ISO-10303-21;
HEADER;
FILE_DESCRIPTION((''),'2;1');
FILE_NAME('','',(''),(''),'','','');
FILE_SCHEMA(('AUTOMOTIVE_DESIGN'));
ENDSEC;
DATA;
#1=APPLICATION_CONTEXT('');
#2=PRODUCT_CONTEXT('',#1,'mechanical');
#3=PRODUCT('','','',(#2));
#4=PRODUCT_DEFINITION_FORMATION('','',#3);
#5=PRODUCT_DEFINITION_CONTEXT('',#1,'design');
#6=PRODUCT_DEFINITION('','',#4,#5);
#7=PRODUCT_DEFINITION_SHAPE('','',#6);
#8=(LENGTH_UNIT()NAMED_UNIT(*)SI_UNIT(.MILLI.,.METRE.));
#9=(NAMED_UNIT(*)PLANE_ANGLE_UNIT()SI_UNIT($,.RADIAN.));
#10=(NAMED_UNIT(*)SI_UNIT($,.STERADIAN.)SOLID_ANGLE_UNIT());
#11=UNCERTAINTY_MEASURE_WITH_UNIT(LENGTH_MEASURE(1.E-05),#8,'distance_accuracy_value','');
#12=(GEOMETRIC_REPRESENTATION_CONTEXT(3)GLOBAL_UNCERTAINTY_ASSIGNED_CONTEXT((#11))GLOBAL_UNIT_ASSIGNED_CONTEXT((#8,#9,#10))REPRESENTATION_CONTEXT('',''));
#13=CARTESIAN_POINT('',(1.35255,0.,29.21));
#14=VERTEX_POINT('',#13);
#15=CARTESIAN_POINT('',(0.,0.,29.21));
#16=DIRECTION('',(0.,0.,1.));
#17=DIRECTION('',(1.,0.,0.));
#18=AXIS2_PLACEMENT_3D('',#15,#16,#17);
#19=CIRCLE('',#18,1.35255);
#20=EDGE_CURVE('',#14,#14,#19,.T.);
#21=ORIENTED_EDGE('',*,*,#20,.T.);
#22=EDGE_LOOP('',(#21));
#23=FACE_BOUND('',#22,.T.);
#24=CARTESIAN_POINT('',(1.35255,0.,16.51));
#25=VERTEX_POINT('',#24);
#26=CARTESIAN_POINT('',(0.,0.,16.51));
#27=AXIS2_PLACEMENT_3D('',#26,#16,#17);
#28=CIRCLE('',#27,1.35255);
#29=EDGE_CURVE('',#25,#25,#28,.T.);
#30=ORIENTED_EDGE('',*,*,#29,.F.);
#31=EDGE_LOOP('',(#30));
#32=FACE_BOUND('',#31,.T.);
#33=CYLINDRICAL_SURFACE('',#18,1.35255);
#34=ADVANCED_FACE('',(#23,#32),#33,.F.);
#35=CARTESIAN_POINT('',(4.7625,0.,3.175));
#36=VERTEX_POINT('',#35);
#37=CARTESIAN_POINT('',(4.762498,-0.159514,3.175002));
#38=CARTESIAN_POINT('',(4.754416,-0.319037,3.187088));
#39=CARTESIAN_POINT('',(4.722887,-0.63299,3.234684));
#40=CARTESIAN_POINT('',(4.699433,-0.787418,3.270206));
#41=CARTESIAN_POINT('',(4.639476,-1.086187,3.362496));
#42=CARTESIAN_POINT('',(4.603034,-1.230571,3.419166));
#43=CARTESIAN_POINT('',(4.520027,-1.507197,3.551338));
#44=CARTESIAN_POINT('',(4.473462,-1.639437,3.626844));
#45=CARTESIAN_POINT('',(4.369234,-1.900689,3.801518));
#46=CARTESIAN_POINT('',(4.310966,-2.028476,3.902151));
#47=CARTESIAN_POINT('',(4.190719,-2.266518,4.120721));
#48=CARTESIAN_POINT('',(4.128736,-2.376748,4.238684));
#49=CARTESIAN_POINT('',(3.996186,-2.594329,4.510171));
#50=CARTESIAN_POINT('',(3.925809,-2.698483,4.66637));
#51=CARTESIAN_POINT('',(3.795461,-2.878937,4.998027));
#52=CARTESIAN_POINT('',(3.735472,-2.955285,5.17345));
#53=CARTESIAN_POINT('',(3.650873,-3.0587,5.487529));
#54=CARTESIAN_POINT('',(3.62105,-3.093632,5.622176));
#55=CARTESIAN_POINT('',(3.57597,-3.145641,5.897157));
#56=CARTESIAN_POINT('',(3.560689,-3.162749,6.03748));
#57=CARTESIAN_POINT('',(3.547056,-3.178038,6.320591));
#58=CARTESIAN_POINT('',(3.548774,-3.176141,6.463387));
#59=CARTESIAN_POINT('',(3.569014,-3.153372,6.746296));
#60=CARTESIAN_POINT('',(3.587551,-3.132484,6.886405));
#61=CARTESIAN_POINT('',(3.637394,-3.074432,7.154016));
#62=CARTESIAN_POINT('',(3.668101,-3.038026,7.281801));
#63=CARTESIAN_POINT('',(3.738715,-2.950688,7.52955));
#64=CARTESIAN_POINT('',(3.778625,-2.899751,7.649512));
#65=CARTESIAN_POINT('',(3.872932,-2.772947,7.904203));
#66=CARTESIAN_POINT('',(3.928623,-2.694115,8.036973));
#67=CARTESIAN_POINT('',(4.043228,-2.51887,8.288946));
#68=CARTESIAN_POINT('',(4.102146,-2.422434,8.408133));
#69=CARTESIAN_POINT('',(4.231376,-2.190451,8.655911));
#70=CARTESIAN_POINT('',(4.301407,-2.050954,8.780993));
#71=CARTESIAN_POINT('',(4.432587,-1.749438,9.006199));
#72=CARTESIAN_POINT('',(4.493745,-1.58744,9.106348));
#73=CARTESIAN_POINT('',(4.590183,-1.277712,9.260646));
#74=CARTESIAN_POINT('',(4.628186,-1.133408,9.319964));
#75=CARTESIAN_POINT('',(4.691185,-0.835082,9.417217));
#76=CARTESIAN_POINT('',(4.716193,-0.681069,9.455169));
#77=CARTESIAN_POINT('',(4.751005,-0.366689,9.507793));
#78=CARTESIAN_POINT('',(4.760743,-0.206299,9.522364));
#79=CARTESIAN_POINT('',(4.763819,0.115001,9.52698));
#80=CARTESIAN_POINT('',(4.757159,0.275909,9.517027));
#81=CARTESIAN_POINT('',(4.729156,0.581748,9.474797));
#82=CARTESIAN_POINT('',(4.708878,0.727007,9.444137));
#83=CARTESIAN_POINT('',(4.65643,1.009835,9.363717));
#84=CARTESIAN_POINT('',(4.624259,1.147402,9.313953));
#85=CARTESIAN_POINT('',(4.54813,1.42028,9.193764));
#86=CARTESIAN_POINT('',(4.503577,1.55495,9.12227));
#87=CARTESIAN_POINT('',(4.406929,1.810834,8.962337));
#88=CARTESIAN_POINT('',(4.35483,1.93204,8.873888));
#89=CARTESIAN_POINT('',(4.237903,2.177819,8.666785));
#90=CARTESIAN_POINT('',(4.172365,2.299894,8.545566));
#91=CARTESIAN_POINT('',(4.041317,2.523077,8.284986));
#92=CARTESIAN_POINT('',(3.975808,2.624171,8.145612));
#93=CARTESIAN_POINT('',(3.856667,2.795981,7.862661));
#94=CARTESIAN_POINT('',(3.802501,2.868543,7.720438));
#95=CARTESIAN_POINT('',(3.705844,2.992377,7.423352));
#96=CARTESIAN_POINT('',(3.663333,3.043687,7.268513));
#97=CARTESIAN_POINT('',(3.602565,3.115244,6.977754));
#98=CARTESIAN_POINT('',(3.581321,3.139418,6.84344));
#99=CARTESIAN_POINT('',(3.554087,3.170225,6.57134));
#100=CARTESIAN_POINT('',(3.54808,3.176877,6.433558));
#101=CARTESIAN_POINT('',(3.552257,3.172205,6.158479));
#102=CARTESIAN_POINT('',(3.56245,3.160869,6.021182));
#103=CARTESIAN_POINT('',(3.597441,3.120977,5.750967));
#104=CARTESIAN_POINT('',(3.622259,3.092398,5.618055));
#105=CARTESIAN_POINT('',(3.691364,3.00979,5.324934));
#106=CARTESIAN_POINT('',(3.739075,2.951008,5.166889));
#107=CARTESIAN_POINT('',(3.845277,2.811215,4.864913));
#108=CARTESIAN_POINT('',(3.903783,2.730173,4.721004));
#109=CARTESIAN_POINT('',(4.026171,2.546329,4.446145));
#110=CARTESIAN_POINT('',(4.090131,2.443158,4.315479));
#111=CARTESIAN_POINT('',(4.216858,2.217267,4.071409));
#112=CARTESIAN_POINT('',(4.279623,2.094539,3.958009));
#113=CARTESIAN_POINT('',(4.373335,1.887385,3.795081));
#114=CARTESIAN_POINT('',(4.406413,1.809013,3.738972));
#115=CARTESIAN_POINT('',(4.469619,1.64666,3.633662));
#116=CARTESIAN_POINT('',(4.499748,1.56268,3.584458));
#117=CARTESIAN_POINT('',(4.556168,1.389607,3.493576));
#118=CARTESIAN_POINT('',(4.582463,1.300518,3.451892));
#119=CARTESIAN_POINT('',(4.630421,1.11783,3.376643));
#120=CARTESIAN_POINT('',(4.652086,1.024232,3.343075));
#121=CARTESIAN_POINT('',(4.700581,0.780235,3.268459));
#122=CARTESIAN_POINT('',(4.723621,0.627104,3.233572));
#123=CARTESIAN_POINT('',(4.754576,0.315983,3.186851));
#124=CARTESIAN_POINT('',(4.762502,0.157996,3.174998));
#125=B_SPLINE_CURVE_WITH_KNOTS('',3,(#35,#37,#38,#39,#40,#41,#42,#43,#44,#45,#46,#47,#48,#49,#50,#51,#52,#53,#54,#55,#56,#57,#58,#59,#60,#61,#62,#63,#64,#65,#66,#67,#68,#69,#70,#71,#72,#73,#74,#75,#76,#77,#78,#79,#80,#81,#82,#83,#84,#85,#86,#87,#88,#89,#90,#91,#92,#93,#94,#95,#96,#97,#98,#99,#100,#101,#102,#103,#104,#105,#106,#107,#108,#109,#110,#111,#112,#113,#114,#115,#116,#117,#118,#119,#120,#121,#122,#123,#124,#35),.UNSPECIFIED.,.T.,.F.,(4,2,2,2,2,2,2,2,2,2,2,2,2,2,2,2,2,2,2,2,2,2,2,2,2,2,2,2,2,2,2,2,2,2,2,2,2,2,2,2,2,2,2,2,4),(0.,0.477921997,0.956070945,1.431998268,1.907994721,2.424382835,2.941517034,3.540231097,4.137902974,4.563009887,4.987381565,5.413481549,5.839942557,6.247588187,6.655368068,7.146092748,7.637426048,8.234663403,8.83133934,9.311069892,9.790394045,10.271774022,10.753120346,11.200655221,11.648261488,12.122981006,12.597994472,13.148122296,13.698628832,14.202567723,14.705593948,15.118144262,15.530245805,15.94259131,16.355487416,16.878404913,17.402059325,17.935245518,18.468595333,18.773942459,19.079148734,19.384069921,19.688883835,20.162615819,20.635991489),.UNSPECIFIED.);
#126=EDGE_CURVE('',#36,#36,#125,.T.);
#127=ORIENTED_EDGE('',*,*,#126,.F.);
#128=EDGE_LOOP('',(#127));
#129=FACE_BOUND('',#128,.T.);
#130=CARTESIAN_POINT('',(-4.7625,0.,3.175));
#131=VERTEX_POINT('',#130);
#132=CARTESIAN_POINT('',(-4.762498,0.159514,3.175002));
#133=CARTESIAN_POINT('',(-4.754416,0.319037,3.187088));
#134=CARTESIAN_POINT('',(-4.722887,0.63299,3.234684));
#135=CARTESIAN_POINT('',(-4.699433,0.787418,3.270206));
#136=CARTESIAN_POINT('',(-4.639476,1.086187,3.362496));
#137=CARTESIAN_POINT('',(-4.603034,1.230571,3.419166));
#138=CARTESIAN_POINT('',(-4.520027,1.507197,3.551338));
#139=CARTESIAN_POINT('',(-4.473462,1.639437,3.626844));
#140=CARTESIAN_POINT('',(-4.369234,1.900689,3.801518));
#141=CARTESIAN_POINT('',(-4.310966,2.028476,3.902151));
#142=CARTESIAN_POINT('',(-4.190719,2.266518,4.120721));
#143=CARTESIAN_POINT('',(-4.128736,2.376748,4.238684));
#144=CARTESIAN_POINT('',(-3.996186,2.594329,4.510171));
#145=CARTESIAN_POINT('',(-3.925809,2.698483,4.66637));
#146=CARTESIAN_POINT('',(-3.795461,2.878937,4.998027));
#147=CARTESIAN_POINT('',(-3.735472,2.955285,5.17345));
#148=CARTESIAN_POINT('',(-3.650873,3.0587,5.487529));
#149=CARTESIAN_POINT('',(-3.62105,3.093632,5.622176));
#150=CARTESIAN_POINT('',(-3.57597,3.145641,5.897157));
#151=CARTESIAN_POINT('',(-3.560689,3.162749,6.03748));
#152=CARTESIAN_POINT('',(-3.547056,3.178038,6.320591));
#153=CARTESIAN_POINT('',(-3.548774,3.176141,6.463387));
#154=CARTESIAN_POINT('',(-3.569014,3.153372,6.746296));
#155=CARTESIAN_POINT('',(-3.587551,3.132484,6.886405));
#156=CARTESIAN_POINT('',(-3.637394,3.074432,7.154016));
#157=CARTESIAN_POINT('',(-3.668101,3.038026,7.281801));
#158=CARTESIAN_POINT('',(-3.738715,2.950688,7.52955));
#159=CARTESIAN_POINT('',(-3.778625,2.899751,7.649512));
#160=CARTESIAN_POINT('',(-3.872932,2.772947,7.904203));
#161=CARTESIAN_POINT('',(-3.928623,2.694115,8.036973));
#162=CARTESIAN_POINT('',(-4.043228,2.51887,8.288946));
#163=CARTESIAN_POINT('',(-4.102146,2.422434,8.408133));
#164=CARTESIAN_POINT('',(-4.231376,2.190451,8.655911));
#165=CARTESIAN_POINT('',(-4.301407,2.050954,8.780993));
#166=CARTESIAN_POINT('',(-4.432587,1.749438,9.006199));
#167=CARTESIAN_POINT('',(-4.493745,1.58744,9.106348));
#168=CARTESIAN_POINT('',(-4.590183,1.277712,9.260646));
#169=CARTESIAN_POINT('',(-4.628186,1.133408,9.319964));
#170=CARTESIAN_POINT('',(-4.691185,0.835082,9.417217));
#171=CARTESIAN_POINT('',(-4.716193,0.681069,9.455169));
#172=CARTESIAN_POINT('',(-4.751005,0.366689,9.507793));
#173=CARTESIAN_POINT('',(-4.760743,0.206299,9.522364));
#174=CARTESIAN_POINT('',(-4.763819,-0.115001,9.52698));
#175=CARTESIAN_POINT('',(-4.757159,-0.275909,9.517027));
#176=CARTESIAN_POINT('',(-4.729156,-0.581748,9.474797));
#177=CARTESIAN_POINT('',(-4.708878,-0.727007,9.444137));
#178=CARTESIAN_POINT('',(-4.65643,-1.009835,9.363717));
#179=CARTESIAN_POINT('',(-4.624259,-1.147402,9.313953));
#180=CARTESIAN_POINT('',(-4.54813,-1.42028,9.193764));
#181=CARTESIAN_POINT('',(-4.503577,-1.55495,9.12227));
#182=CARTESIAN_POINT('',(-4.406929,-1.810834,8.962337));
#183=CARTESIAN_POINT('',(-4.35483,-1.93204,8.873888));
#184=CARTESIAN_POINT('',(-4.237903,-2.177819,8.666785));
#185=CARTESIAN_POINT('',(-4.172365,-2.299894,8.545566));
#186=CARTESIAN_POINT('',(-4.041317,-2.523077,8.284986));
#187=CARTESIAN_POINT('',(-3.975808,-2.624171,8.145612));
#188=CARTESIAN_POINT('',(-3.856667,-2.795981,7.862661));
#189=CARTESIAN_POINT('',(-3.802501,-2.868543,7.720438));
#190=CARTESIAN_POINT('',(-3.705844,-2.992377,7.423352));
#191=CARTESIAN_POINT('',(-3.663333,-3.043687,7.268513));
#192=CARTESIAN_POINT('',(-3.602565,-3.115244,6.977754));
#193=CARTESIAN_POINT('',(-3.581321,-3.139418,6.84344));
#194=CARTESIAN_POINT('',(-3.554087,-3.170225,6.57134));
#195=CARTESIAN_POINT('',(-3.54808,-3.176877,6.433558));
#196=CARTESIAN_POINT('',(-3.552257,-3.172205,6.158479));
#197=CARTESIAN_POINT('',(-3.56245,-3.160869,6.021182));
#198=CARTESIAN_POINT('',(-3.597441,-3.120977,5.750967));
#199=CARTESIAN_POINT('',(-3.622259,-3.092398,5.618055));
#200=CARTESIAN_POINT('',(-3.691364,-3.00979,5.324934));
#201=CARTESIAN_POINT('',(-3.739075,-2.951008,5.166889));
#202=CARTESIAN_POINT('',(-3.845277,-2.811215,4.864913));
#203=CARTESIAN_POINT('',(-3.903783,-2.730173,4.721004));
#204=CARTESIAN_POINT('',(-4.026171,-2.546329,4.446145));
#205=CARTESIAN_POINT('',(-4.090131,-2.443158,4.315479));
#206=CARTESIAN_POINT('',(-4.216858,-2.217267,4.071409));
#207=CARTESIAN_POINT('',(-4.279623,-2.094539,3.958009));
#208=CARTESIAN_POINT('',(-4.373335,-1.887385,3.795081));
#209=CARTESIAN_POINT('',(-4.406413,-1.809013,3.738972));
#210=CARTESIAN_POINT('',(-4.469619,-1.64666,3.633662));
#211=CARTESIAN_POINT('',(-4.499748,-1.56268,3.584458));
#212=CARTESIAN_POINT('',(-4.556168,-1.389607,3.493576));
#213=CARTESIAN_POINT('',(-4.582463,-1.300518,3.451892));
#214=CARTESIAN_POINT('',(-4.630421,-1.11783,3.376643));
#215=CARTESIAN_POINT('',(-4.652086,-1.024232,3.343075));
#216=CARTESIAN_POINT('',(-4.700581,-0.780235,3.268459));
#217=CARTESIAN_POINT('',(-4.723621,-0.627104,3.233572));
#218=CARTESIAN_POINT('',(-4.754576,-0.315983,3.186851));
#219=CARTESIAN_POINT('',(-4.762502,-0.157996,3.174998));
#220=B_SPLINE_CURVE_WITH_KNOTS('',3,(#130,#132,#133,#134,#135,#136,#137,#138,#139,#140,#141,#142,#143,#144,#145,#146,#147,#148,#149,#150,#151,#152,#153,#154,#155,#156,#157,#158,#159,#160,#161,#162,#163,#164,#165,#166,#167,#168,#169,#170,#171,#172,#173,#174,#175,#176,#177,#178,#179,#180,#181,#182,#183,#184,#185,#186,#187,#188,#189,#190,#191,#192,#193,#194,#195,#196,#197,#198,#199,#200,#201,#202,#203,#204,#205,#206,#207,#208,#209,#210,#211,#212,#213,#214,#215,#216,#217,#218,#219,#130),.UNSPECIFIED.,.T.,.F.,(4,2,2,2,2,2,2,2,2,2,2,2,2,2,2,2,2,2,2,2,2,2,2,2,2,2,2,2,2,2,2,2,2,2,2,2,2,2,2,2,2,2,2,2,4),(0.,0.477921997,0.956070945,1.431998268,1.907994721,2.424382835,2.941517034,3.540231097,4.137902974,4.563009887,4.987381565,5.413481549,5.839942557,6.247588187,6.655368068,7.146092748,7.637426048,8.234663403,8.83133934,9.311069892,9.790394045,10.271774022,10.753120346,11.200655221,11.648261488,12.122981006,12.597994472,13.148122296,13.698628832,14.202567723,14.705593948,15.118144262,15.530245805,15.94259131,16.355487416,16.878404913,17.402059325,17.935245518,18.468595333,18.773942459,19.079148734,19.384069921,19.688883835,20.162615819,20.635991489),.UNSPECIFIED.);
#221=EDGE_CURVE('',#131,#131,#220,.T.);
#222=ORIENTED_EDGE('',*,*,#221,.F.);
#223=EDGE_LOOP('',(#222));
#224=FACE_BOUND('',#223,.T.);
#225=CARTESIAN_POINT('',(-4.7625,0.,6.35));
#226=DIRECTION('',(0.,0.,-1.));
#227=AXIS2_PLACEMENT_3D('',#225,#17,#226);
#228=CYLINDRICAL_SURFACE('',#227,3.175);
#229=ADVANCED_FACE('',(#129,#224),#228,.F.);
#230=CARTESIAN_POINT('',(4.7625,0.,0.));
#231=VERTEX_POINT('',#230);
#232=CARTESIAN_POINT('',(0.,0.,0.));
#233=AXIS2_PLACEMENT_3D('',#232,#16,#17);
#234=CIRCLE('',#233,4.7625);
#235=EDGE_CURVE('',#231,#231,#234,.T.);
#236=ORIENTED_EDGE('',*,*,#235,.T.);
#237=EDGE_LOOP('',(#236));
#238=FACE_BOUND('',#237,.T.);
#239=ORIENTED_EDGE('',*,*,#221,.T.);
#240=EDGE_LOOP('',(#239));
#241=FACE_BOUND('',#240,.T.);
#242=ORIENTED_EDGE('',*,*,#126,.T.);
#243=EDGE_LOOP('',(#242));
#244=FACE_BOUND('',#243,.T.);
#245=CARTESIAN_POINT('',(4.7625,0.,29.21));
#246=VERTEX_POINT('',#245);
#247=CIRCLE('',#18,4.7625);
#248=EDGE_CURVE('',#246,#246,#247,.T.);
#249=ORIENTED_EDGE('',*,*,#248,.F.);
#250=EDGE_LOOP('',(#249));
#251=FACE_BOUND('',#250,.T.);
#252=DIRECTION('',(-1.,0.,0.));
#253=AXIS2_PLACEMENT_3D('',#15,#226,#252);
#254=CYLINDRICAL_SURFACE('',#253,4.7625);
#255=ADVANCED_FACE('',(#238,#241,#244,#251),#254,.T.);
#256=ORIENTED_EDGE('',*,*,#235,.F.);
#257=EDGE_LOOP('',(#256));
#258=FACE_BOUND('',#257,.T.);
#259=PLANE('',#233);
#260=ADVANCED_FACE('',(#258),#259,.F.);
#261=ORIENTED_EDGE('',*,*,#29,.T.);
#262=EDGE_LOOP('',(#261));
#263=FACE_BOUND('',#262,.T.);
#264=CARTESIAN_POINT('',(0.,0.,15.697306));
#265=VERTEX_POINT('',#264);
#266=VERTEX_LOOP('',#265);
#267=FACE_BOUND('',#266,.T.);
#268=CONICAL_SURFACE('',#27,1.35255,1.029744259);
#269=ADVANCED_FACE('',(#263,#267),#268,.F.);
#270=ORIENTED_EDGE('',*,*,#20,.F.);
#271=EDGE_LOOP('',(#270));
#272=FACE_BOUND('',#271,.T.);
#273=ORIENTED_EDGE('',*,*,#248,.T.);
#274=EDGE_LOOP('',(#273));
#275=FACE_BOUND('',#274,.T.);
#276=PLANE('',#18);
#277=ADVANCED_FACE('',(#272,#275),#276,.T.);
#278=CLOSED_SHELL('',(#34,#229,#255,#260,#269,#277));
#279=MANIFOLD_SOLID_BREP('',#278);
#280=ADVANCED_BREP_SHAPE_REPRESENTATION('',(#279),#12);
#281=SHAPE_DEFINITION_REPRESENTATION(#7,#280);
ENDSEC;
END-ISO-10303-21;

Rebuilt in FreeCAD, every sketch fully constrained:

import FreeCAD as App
import Part
import Sketcher

V = App.Vector
Q = App.Units.Quantity

doc = App.newDocument("Part")
body = doc.addObject("PartDesign::Body", "Body")

sketch1 = body.newObject("Sketcher::SketchObject", "Sketch")
sketch1.AttachmentSupport = (doc.getObject("XY_Plane"), [""])
sketch1.MapMode = "FlatFace"
sketch1.addGeometry(Part.Circle(V(0, 0, 0), V(0, 0, 1), 4.8), False)
sketch1.addConstraint([
    Sketcher.Constraint("Coincident", 0, 3, -1, 1),
    Sketcher.Constraint("Diameter", 0, Q("0.375 in")),
])
pad1 = body.newObject("PartDesign::Pad", "Pad")
pad1.Profile = sketch1
pad1.Length = Q("1.15 in")

sketch2 = body.newObject("Sketcher::SketchObject", "Sketch001")
sketch2.AttachmentSupport = (doc.getObject("YZ_Plane"), [""])
sketch2.MapMode = "FlatFace"
sketch2.addGeometry(Part.Circle(V(0, 6.3, 0), V(0, 0, 1), 3.2), False)
sketch2.addConstraint([
    Sketcher.Constraint("PointOnObject", 0, 3, -2),
    Sketcher.Constraint("Diameter", 0, Q("0.25 in")),
    Sketcher.Constraint("DistanceY", -1, 1, 0, 3, Q("0.25 in")),
])
pocket1 = body.newObject("PartDesign::Pocket", "Pocket")
pocket1.Profile = sketch2
pocket1.Type = "ThroughAll"
pocket1.Midplane = True

sketch3 = body.newObject("Sketcher::SketchObject", "Sketch002")
sketch3.AttachmentSupport = (doc.getObject("XY_Plane"), [""])
sketch3.MapMode = "FlatFace"
sketch3.AttachmentOffset = App.Placement(V(0, 0, 1.15 * 25.4), App.Rotation())
sketch3.addGeometry(Part.Circle(V(0, 0, 0), V(0, 0, 1), 1.4), False)
sketch3.addConstraint([
    Sketcher.Constraint("Coincident", 0, 3, -1, 1),
    Sketcher.Constraint("Diameter", 0, Q("0.1065 in")),
])
doc.recompute()
hole = body.newObject("PartDesign::Hole", "Hole")
hole.Profile = sketch3
hole.ThreadType = "None"
hole.Diameter = Q("0.1065 in")
hole.DepthType = "Dimension"
hole.Depth = Q("0.5 in")
hole.DrillPoint = "Angled"
hole.DrillPointAngle = 118

doc.recompute()
